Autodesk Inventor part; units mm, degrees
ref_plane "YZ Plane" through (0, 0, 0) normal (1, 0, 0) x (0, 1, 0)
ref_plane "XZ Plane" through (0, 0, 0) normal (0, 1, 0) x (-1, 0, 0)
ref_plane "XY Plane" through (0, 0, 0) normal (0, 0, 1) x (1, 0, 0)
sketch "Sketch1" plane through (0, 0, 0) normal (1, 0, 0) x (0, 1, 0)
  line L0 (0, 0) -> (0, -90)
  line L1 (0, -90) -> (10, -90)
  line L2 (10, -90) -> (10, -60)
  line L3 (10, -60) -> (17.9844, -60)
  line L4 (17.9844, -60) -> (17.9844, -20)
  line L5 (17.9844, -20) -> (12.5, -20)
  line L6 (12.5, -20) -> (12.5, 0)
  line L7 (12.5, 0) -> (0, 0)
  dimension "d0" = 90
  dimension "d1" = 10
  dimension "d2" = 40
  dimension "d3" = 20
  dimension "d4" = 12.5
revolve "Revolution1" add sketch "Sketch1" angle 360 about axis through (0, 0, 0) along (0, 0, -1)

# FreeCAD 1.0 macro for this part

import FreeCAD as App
import Part
import Sketcher
from FreeCAD import Vector
Q = App.Units.Quantity


def add_polygon(sketch, points):
    """Adds a closed chain of lines whose ends are joined by coincident constraints."""
    first, n = sketch.GeometryCount, len(points)
    for a, b in zip(points, points[1:] + points[:1]):
        sketch.addGeometry(Part.LineSegment(App.Vector(*a, 0), App.Vector(*b, 0)), False)
    for i in range(n):
        sketch.addConstraint(Sketcher.Constraint("Coincident", first + i, 2, first + (i + 1) % n, 1))

doc = App.newDocument("Part")
body = doc.addObject("PartDesign::Body", "Body")

sketch1 = doc.addObject("Sketcher::SketchObject", "Sketch")
body.addObject(sketch1)
sketch1.AttachmentSupport = (doc.YZ_Plane, [""])
sketch1.MapMode = "FlatFace"
add_polygon(sketch1, [(12, 0), (0, 0), (0, -90), (10, -90), (10, -60), (18, -60), (18, -20), (12, -20)])
sketch1.addConstraint([
    Sketcher.Constraint("Horizontal", 0),
    Sketcher.Constraint("Vertical", 1),
    Sketcher.Constraint("Horizontal", 2),
    Sketcher.Constraint("Vertical", 3),
    Sketcher.Constraint("Horizontal", 4),
    Sketcher.Constraint("Vertical", 5),
    Sketcher.Constraint("Horizontal", 6),
    Sketcher.Constraint("Vertical", 7),
    Sketcher.Constraint("Coincident", 0, 2, -1, 1),
    Sketcher.Constraint("DistanceX", 2, 1, 2, 2, Q("10 mm")),
    Sketcher.Constraint("DistanceY", 1, 2, 1, 1, Q("90 mm")),
    Sketcher.Constraint("DistanceY", 5, 1, 5, 2, Q("40 mm")),
    Sketcher.Constraint("DistanceY", 7, 1, 7, 2, Q("20 mm")),
    Sketcher.Constraint("DistanceX", 0, 2, 0, 1, Q("12.5 mm")),
    Sketcher.Constraint("DistanceX", 4, 1, 4, 2, Q("7.9844 mm")),
])
revolution = doc.addObject("PartDesign::Revolution", "Revolution")
body.addObject(revolution)
revolution.Profile = sketch1
revolution.ReferenceAxis = (sketch1, ["V_Axis"])
revolution.Angle = 360

doc.recompute()
